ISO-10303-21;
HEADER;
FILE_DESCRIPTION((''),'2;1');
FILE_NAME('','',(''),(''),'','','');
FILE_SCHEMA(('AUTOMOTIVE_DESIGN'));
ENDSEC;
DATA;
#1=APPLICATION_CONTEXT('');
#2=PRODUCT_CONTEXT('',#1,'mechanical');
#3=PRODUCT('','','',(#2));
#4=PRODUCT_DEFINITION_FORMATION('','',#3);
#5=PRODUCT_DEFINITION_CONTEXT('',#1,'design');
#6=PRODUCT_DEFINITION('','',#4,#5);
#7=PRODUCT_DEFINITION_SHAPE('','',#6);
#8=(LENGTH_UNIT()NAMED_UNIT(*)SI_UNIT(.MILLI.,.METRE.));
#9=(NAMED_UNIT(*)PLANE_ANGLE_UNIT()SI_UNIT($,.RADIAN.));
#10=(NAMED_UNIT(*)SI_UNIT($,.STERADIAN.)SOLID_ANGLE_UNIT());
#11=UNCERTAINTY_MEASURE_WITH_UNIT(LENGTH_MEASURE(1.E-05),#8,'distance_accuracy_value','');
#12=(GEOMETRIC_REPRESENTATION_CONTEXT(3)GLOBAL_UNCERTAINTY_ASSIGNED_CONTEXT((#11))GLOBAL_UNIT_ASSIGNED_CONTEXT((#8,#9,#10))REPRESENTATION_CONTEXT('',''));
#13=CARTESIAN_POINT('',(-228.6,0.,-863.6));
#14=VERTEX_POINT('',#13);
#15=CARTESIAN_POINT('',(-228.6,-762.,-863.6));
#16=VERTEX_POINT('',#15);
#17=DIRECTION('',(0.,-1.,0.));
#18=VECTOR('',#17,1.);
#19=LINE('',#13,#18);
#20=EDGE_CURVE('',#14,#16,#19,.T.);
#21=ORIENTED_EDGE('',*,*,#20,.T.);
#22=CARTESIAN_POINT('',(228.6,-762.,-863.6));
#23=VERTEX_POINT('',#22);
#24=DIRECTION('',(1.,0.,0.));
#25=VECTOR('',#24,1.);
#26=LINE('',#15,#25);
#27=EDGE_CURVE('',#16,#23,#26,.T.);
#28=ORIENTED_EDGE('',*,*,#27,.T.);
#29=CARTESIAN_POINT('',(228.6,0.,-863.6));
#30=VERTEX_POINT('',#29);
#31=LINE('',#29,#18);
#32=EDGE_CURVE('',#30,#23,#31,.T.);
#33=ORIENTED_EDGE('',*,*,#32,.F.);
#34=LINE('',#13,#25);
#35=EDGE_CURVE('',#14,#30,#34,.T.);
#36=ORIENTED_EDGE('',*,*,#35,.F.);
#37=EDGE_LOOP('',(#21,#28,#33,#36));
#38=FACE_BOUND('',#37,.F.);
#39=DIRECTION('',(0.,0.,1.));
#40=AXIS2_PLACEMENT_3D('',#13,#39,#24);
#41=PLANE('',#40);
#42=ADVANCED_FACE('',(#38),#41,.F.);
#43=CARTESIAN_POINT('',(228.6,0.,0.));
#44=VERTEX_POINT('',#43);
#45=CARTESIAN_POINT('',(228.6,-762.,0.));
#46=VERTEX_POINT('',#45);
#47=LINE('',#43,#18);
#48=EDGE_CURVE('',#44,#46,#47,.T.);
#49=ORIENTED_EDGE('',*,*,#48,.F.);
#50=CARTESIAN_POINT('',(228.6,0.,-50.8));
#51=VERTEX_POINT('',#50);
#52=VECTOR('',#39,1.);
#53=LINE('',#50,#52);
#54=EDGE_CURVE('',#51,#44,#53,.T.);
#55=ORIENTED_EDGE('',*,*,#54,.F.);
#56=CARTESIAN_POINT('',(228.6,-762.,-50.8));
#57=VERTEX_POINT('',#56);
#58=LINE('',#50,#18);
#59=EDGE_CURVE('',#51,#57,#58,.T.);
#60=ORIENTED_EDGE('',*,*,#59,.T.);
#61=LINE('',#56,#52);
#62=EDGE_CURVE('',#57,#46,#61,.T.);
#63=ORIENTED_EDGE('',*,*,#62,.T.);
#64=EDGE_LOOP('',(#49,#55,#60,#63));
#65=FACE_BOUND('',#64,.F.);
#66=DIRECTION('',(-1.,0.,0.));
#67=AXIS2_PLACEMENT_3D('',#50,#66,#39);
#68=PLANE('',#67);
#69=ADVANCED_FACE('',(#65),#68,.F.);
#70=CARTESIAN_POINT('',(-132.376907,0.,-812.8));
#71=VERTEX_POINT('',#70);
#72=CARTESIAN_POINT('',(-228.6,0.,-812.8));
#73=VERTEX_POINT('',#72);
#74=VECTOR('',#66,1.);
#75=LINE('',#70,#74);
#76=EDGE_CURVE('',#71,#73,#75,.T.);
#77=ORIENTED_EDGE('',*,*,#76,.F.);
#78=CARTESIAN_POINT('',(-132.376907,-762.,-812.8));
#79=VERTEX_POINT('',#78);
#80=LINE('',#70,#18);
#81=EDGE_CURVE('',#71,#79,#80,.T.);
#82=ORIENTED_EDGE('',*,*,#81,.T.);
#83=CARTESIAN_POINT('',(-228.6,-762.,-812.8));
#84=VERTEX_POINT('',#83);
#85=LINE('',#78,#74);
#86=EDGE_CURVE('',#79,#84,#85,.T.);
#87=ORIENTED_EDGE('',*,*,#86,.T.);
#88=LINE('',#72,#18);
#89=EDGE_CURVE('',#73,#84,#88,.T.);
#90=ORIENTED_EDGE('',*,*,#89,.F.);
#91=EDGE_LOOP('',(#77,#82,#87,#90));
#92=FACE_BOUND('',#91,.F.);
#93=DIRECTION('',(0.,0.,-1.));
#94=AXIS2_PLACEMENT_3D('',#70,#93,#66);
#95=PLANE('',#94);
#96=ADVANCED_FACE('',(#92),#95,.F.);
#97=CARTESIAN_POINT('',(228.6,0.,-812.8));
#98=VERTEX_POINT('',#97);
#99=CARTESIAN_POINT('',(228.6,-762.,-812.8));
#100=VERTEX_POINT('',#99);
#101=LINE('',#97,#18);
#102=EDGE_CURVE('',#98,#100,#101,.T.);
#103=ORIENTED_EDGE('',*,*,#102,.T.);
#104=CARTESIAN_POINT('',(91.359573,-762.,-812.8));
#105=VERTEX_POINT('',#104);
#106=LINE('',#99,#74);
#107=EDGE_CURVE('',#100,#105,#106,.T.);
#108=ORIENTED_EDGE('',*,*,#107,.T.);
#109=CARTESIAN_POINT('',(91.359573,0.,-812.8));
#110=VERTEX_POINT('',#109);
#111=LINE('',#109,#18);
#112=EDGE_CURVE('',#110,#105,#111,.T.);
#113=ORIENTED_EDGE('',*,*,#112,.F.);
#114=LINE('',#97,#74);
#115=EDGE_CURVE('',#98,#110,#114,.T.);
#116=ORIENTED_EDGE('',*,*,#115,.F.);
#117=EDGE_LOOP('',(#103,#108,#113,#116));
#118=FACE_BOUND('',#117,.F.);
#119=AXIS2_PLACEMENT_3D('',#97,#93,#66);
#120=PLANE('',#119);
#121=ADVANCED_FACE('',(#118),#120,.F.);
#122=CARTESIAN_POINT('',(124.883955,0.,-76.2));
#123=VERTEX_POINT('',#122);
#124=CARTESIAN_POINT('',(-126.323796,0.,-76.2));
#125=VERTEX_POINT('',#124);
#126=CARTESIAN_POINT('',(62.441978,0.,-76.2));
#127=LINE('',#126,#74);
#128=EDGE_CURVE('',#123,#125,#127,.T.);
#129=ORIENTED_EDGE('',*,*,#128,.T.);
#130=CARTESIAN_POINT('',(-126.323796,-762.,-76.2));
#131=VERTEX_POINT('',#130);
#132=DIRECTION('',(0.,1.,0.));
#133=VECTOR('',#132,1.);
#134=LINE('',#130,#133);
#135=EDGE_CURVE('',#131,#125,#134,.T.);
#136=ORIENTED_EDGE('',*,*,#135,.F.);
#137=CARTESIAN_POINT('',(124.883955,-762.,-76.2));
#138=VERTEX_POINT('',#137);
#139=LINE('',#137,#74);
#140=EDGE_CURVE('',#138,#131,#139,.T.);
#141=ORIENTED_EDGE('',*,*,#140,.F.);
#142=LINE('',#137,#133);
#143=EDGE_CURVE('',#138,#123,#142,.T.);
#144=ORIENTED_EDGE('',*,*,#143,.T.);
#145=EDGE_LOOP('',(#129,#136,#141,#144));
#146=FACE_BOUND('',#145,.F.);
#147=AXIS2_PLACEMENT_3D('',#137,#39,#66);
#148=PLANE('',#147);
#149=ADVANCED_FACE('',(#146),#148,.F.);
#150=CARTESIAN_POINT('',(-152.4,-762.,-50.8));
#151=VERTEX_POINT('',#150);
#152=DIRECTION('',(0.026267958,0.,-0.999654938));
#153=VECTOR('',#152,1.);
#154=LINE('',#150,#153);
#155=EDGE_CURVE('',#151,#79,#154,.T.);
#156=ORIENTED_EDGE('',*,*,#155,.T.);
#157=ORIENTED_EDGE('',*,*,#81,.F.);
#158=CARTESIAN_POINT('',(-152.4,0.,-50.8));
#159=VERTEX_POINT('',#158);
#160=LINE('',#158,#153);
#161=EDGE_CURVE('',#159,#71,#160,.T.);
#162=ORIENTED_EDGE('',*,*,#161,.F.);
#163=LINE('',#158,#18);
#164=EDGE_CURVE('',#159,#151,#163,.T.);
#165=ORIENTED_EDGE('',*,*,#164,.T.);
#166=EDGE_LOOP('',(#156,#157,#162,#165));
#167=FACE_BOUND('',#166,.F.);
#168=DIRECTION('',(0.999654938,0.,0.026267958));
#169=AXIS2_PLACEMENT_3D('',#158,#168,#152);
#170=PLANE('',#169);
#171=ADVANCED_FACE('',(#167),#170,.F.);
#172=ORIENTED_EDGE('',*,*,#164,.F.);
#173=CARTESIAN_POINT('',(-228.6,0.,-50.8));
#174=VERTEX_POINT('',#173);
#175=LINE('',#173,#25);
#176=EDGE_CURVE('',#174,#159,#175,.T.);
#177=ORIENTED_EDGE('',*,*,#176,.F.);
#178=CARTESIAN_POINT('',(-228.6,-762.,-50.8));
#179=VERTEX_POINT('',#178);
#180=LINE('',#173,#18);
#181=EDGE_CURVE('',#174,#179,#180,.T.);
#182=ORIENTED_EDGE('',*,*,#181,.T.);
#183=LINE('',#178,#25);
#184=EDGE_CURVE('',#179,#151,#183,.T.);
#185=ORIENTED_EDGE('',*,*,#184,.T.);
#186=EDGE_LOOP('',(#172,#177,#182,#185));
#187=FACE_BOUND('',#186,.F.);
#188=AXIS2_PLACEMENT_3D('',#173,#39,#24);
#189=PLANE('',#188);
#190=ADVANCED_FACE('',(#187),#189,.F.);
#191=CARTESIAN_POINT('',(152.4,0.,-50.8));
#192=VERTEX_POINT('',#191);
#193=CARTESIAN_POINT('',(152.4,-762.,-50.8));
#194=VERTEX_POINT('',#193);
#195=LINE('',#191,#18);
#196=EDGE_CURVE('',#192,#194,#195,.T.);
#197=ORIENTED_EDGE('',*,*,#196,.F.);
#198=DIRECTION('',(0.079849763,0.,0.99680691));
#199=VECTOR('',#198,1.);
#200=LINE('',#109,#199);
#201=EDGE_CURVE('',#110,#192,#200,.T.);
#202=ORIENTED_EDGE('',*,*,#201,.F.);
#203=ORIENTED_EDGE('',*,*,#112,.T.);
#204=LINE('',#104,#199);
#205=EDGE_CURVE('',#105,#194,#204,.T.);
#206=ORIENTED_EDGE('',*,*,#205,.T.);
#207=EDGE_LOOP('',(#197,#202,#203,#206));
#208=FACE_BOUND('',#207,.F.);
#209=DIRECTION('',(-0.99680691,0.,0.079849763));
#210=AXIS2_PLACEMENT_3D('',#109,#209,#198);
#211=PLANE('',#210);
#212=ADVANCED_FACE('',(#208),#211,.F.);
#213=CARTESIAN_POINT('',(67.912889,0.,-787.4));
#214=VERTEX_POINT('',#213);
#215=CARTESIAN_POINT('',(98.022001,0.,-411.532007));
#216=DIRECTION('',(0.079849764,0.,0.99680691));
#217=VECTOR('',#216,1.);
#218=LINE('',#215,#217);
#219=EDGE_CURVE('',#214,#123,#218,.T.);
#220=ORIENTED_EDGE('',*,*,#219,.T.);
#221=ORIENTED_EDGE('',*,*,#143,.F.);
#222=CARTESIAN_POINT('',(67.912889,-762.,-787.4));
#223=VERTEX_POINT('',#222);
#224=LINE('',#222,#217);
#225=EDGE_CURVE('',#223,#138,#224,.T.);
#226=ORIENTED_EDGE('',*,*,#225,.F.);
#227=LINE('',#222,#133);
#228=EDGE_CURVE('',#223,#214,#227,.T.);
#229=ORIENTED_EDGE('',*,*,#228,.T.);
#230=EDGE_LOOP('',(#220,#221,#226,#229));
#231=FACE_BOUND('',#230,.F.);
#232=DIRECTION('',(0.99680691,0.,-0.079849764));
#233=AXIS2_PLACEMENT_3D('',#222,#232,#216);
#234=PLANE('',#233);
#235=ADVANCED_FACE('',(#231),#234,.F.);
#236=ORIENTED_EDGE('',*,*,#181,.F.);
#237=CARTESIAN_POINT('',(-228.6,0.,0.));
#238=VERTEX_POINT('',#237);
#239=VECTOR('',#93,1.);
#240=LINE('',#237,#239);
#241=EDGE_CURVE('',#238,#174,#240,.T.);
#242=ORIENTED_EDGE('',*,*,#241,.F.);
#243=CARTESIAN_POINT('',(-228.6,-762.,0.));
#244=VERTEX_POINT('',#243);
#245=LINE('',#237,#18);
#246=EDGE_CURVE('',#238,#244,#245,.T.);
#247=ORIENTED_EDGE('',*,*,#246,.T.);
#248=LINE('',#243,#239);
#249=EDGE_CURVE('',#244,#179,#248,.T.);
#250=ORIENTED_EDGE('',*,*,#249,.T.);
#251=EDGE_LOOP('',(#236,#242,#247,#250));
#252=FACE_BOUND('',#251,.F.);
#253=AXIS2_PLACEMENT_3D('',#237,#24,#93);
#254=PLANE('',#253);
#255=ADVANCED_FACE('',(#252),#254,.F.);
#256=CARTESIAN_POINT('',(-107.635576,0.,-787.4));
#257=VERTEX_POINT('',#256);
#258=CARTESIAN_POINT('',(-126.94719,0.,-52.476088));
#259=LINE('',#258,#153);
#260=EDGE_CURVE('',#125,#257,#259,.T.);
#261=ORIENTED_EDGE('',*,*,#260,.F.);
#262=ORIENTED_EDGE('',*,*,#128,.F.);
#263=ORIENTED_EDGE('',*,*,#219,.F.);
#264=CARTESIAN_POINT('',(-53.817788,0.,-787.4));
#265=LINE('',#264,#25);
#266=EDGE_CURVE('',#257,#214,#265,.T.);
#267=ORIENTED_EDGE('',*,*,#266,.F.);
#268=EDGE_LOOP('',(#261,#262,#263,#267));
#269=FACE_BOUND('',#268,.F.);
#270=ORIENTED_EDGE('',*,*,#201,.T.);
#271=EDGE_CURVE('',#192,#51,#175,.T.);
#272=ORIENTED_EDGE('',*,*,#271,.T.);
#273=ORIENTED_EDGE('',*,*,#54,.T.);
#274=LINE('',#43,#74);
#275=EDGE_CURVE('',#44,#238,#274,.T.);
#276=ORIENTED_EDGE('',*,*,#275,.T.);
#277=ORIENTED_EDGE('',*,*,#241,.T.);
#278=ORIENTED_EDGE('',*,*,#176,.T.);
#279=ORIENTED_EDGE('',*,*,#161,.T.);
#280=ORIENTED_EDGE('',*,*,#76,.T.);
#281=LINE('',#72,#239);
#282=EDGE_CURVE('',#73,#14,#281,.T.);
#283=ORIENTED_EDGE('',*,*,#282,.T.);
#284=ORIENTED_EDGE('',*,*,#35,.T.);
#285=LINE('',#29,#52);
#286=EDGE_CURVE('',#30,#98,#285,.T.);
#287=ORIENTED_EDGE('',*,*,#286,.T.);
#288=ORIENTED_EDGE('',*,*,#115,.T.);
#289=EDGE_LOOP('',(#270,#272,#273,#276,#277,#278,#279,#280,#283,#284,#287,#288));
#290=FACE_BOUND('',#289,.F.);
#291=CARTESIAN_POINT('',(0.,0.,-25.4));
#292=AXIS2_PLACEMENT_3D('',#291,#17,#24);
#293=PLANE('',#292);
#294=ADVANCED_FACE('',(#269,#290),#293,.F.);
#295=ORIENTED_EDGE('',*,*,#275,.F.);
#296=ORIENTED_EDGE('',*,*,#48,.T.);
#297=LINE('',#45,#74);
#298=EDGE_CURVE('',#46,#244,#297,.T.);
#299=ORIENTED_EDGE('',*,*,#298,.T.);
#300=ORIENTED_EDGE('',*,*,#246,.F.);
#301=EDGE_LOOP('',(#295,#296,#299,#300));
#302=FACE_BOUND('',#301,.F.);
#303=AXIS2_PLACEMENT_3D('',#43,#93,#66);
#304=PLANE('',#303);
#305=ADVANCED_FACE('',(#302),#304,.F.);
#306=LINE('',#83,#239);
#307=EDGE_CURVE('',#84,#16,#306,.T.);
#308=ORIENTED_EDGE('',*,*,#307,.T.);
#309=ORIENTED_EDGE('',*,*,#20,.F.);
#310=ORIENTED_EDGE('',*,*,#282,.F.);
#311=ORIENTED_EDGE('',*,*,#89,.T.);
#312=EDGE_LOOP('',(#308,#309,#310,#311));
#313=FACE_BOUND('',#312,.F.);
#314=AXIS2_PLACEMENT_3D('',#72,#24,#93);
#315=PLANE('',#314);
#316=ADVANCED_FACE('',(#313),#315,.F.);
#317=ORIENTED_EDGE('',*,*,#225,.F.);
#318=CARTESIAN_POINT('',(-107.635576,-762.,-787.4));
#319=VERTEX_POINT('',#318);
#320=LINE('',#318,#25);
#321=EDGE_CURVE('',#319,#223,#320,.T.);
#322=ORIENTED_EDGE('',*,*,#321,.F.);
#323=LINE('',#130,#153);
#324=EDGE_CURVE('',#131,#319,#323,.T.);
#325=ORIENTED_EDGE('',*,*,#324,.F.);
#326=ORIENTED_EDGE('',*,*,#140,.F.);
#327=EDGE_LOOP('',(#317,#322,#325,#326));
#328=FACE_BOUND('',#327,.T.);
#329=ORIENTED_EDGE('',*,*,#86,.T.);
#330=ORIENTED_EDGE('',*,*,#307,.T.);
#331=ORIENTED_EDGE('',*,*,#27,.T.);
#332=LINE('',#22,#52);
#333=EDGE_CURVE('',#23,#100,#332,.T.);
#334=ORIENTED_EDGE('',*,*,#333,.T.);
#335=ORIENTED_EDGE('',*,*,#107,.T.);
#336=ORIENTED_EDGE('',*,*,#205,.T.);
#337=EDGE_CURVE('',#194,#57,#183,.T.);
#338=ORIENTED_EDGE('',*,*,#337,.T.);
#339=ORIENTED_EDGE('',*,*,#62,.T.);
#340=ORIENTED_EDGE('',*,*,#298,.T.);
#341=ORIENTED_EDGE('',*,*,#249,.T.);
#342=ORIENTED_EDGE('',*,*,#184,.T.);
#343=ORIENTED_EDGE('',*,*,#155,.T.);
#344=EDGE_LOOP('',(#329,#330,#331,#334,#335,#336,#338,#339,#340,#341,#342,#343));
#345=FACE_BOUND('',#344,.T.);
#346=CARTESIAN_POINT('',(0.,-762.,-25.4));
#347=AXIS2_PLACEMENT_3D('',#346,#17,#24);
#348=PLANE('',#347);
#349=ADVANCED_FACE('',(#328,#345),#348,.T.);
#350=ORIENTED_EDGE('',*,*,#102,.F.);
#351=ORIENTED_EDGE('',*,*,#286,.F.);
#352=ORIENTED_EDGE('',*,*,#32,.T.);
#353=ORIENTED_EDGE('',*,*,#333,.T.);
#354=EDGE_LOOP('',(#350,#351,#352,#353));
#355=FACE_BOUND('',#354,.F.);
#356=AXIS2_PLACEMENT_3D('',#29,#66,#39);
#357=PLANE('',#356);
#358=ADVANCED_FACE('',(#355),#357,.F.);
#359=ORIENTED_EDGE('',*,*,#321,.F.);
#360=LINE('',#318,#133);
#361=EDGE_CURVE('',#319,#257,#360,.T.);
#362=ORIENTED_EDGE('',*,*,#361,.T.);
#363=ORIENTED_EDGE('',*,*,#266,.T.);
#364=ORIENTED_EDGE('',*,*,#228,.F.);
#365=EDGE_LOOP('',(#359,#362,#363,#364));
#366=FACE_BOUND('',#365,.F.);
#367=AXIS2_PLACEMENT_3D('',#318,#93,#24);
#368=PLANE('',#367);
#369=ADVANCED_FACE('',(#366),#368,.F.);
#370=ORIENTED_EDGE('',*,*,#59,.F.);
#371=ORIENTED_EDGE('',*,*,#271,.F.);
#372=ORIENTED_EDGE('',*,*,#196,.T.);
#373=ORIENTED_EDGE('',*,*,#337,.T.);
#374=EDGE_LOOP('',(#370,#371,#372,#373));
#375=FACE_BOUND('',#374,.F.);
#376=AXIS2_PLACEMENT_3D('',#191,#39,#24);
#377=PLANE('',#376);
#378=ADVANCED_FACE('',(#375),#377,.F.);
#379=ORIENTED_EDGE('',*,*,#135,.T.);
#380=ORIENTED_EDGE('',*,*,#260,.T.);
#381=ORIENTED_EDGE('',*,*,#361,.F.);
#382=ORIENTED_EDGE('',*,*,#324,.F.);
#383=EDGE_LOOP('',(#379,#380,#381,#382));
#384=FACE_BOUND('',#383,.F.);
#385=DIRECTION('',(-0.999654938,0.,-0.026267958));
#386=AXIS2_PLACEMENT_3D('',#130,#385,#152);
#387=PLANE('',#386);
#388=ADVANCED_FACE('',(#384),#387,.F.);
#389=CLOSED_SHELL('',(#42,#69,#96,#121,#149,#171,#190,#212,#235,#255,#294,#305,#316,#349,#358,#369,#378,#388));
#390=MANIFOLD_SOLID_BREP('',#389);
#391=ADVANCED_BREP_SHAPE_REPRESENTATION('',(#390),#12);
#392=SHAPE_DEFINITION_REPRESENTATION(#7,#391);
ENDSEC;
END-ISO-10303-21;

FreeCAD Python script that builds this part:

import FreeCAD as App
import Part
import Sketcher

V = App.Vector
Q = App.Units.Quantity

doc = App.newDocument("Part")
params = doc.addObject("Spreadsheet::Sheet", "Params")
for row, (alias, value) in enumerate([
    ("sketch1_width", "18 in"),
    ("sketch1_width2", "3 in"),
    ("sketch1_height", "2 in"),
    ("pad1_length", "30 in"),
], start=1):
    params.set(f"A{row}", alias)
    params.set(f"B{row}", "=" + value)
    params.setAlias(f"B{row}", alias)

body = doc.addObject("PartDesign::Body", "Body")

sketch1 = body.newObject("Sketcher::SketchObject", "Sketch")
sketch1.AttachmentSupport = (doc.getObject("XZ_Plane"), [""])
sketch1.MapMode = "FlatFace"
sketch1.addGeometry(Part.LineSegment(V(229, 0, 0), V(-229, 0, 0)), False)
sketch1.addGeometry(Part.LineSegment(V(-229, 0, 0), V(-229, -51, 0)), False)
sketch1.addGeometry(Part.LineSegment(V(-229, -51, 0), V(-152, -51, 0)), False)
sketch1.addGeometry(Part.LineSegment(V(-152, -51, 0), V(-132, -813, 0)), False)
sketch1.addGeometry(Part.LineSegment(V(-132, -813, 0), V(-229, -813, 0)), False)
sketch1.addGeometry(Part.LineSegment(V(-229, -813, 0), V(-229, -864, 0)), False)
sketch1.addGeometry(Part.LineSegment(V(-229, -864, 0), V(229, -864, 0)), False)
sketch1.addGeometry(Part.LineSegment(V(229, -864, 0), V(229, -813, 0)), False)
sketch1.addGeometry(Part.LineSegment(V(229, -813, 0), V(91, -813, 0)), False)
sketch1.addGeometry(Part.LineSegment(V(91, -813, 0), V(152, -51, 0)), False)
sketch1.addGeometry(Part.LineSegment(V(152, -51, 0), V(229, -51, 0)), False)
sketch1.addGeometry(Part.LineSegment(V(229, -51, 0), V(229, 0, 0)), False)
sketch1.addConstraint(Sketcher.Constraint("Coincident", 0, 2, 1, 1))
sketch1.addConstraint(Sketcher.Constraint("Coincident", 1, 2, 2, 1))
sketch1.addConstraint(Sketcher.Constraint("Coincident", 2, 2, 3, 1))
sketch1.addConstraint(Sketcher.Constraint("Coincident", 3, 2, 4, 1))
sketch1.addConstraint(Sketcher.Constraint("Coincident", 4, 2, 5, 1))
sketch1.addConstraint(Sketcher.Constraint("Coincident", 5, 2, 6, 1))
sketch1.addConstraint(Sketcher.Constraint("Coincident", 6, 2, 7, 1))
sketch1.addConstraint(Sketcher.Constraint("Coincident", 7, 2, 8, 1))
sketch1.addConstraint(Sketcher.Constraint("Coincident", 8, 2, 9, 1))
sketch1.addConstraint(Sketcher.Constraint("Coincident", 9, 2, 10, 1))
sketch1.addConstraint(Sketcher.Constraint("Coincident", 10, 2, 11, 1))
sketch1.addConstraint(Sketcher.Constraint("Coincident", 11, 2, 0, 1))
sketch1.addConstraint(Sketcher.Constraint("Horizontal", 0))
sketch1.addConstraint(Sketcher.Constraint("Vertical", 1))
sketch1.addConstraint(Sketcher.Constraint("Horizontal", 2))
sketch1.addConstraint(Sketcher.Constraint("Horizontal", 4))
sketch1.addConstraint(Sketcher.Constraint("Vertical", 5))
sketch1.addConstraint(Sketcher.Constraint("Horizontal", 6))
sketch1.addConstraint(Sketcher.Constraint("Vertical", 7))
sketch1.addConstraint(Sketcher.Constraint("Horizontal", 8))
sketch1.addConstraint(Sketcher.Constraint("Horizontal", 10))
sketch1.addConstraint(Sketcher.Constraint("Vertical", 11))
sketch1.addConstraint(Sketcher.Constraint("Symmetric", 0, 2, 11, 2, -1, 1))
sketch1.addConstraint(Sketcher.Constraint("Symmetric", 4, 2, 7, 2, -2))
sketch1.addConstraint(Sketcher.Constraint("Symmetric", 2, 2, 9, 2, -2))
sketch1.addConstraint(Sketcher.Constraint("Vertical", 1, 2, 4, 2))
sketch1.addConstraint(Sketcher.Constraint("Equal", 1, 5))
sketch1.addConstraint(Sketcher.Constraint("DistanceX", 0, 2, 0, 1, Q("18 in")))
sketch1.addConstraint(Sketcher.Constraint("DistanceX", 2, 1, 2, 2, Q("3 in")))
sketch1.addConstraint(Sketcher.Constraint("DistanceY", 1, 2, 1, 1, Q("2 in")))
sketch1.addConstraint(Sketcher.Constraint("DistanceY", 3, 2, -1, 1, Q("32 in")))
sketch1.addConstraint(Sketcher.Constraint("Distance", 3, 762.263028))
sketch1.addConstraint(Sketcher.Constraint("Distance", 9, 764.440929))
sketch1.setExpression("Constraints[27]", "Params.sketch1_width")
sketch1.setExpression("Constraints[28]", "Params.sketch1_width2")
sketch1.setExpression("Constraints[29]", "Params.sketch1_height")
pad1 = body.newObject("PartDesign::Pad", "Pad")
pad1.Profile = sketch1
pad1.setExpression("Length", "Params.pad1_length")

sketch2 = body.newObject("Sketcher::SketchObject", "Sketch001")
sketch2.AttachmentSupport = (doc.getObject("XZ_Plane"), [""])
sketch2.MapMode = "FlatFace"
sketch2.AttachmentOffset = App.Placement(V(0, 0, 30 * 25.4), App.Rotation())
sketch2.addGeometry(Part.LineSegment(V(125, -76, 0), V(-126, -76, 0)), False)
sketch2.addGeometry(Part.LineSegment(V(-126, -76, 0), V(-108, -787, 0)), False)
sketch2.addGeometry(Part.LineSegment(V(-108, -787, 0), V(68, -787, 0)), False)
sketch2.addGeometry(Part.LineSegment(V(68, -787, 0), V(125, -76, 0)), False)
sketch2.addConstraint(Sketcher.Constraint("Coincident", 0, 2, 1, 1))
sketch2.addConstraint(Sketcher.Constraint("Coincident", 1, 2, 2, 1))
sketch2.addConstraint(Sketcher.Constraint("Coincident", 2, 2, 3, 1))
sketch2.addConstraint(Sketcher.Constraint("Coincident", 3, 2, 0, 1))
sketch2.addConstraint(Sketcher.Constraint("Horizontal", 0))
sketch2.addConstraint(Sketcher.Constraint("Horizontal", 2))
sketch2.addConstraint(Sketcher.Constraint("DistanceY", 0, 2, -1, 1, Q("3 in")))
sketch2.addConstraint(Sketcher.Constraint("DistanceY", 1, 2, -1, 1, Q("31 in")))
sketch2.addConstraint(Sketcher.Constraint("Distance", 3, 713.4782))
sketch2.addConstraint(Sketcher.Constraint("DistanceX", 0, 2, 0, 1, 251.207751))
sketch2.addConstraint(Sketcher.Constraint("DistanceX", 2, 1, 2, 2, 175.548465))
sketch2.addConstraint(Sketcher.Constraint("DistanceX", -1, 1, 2, 2, 67.912889))
pocket1 = body.newObject("PartDesign::Pocket", "Pocket")
pocket1.Profile = sketch2
pocket1.Type = "ThroughAll"

doc.recompute()
